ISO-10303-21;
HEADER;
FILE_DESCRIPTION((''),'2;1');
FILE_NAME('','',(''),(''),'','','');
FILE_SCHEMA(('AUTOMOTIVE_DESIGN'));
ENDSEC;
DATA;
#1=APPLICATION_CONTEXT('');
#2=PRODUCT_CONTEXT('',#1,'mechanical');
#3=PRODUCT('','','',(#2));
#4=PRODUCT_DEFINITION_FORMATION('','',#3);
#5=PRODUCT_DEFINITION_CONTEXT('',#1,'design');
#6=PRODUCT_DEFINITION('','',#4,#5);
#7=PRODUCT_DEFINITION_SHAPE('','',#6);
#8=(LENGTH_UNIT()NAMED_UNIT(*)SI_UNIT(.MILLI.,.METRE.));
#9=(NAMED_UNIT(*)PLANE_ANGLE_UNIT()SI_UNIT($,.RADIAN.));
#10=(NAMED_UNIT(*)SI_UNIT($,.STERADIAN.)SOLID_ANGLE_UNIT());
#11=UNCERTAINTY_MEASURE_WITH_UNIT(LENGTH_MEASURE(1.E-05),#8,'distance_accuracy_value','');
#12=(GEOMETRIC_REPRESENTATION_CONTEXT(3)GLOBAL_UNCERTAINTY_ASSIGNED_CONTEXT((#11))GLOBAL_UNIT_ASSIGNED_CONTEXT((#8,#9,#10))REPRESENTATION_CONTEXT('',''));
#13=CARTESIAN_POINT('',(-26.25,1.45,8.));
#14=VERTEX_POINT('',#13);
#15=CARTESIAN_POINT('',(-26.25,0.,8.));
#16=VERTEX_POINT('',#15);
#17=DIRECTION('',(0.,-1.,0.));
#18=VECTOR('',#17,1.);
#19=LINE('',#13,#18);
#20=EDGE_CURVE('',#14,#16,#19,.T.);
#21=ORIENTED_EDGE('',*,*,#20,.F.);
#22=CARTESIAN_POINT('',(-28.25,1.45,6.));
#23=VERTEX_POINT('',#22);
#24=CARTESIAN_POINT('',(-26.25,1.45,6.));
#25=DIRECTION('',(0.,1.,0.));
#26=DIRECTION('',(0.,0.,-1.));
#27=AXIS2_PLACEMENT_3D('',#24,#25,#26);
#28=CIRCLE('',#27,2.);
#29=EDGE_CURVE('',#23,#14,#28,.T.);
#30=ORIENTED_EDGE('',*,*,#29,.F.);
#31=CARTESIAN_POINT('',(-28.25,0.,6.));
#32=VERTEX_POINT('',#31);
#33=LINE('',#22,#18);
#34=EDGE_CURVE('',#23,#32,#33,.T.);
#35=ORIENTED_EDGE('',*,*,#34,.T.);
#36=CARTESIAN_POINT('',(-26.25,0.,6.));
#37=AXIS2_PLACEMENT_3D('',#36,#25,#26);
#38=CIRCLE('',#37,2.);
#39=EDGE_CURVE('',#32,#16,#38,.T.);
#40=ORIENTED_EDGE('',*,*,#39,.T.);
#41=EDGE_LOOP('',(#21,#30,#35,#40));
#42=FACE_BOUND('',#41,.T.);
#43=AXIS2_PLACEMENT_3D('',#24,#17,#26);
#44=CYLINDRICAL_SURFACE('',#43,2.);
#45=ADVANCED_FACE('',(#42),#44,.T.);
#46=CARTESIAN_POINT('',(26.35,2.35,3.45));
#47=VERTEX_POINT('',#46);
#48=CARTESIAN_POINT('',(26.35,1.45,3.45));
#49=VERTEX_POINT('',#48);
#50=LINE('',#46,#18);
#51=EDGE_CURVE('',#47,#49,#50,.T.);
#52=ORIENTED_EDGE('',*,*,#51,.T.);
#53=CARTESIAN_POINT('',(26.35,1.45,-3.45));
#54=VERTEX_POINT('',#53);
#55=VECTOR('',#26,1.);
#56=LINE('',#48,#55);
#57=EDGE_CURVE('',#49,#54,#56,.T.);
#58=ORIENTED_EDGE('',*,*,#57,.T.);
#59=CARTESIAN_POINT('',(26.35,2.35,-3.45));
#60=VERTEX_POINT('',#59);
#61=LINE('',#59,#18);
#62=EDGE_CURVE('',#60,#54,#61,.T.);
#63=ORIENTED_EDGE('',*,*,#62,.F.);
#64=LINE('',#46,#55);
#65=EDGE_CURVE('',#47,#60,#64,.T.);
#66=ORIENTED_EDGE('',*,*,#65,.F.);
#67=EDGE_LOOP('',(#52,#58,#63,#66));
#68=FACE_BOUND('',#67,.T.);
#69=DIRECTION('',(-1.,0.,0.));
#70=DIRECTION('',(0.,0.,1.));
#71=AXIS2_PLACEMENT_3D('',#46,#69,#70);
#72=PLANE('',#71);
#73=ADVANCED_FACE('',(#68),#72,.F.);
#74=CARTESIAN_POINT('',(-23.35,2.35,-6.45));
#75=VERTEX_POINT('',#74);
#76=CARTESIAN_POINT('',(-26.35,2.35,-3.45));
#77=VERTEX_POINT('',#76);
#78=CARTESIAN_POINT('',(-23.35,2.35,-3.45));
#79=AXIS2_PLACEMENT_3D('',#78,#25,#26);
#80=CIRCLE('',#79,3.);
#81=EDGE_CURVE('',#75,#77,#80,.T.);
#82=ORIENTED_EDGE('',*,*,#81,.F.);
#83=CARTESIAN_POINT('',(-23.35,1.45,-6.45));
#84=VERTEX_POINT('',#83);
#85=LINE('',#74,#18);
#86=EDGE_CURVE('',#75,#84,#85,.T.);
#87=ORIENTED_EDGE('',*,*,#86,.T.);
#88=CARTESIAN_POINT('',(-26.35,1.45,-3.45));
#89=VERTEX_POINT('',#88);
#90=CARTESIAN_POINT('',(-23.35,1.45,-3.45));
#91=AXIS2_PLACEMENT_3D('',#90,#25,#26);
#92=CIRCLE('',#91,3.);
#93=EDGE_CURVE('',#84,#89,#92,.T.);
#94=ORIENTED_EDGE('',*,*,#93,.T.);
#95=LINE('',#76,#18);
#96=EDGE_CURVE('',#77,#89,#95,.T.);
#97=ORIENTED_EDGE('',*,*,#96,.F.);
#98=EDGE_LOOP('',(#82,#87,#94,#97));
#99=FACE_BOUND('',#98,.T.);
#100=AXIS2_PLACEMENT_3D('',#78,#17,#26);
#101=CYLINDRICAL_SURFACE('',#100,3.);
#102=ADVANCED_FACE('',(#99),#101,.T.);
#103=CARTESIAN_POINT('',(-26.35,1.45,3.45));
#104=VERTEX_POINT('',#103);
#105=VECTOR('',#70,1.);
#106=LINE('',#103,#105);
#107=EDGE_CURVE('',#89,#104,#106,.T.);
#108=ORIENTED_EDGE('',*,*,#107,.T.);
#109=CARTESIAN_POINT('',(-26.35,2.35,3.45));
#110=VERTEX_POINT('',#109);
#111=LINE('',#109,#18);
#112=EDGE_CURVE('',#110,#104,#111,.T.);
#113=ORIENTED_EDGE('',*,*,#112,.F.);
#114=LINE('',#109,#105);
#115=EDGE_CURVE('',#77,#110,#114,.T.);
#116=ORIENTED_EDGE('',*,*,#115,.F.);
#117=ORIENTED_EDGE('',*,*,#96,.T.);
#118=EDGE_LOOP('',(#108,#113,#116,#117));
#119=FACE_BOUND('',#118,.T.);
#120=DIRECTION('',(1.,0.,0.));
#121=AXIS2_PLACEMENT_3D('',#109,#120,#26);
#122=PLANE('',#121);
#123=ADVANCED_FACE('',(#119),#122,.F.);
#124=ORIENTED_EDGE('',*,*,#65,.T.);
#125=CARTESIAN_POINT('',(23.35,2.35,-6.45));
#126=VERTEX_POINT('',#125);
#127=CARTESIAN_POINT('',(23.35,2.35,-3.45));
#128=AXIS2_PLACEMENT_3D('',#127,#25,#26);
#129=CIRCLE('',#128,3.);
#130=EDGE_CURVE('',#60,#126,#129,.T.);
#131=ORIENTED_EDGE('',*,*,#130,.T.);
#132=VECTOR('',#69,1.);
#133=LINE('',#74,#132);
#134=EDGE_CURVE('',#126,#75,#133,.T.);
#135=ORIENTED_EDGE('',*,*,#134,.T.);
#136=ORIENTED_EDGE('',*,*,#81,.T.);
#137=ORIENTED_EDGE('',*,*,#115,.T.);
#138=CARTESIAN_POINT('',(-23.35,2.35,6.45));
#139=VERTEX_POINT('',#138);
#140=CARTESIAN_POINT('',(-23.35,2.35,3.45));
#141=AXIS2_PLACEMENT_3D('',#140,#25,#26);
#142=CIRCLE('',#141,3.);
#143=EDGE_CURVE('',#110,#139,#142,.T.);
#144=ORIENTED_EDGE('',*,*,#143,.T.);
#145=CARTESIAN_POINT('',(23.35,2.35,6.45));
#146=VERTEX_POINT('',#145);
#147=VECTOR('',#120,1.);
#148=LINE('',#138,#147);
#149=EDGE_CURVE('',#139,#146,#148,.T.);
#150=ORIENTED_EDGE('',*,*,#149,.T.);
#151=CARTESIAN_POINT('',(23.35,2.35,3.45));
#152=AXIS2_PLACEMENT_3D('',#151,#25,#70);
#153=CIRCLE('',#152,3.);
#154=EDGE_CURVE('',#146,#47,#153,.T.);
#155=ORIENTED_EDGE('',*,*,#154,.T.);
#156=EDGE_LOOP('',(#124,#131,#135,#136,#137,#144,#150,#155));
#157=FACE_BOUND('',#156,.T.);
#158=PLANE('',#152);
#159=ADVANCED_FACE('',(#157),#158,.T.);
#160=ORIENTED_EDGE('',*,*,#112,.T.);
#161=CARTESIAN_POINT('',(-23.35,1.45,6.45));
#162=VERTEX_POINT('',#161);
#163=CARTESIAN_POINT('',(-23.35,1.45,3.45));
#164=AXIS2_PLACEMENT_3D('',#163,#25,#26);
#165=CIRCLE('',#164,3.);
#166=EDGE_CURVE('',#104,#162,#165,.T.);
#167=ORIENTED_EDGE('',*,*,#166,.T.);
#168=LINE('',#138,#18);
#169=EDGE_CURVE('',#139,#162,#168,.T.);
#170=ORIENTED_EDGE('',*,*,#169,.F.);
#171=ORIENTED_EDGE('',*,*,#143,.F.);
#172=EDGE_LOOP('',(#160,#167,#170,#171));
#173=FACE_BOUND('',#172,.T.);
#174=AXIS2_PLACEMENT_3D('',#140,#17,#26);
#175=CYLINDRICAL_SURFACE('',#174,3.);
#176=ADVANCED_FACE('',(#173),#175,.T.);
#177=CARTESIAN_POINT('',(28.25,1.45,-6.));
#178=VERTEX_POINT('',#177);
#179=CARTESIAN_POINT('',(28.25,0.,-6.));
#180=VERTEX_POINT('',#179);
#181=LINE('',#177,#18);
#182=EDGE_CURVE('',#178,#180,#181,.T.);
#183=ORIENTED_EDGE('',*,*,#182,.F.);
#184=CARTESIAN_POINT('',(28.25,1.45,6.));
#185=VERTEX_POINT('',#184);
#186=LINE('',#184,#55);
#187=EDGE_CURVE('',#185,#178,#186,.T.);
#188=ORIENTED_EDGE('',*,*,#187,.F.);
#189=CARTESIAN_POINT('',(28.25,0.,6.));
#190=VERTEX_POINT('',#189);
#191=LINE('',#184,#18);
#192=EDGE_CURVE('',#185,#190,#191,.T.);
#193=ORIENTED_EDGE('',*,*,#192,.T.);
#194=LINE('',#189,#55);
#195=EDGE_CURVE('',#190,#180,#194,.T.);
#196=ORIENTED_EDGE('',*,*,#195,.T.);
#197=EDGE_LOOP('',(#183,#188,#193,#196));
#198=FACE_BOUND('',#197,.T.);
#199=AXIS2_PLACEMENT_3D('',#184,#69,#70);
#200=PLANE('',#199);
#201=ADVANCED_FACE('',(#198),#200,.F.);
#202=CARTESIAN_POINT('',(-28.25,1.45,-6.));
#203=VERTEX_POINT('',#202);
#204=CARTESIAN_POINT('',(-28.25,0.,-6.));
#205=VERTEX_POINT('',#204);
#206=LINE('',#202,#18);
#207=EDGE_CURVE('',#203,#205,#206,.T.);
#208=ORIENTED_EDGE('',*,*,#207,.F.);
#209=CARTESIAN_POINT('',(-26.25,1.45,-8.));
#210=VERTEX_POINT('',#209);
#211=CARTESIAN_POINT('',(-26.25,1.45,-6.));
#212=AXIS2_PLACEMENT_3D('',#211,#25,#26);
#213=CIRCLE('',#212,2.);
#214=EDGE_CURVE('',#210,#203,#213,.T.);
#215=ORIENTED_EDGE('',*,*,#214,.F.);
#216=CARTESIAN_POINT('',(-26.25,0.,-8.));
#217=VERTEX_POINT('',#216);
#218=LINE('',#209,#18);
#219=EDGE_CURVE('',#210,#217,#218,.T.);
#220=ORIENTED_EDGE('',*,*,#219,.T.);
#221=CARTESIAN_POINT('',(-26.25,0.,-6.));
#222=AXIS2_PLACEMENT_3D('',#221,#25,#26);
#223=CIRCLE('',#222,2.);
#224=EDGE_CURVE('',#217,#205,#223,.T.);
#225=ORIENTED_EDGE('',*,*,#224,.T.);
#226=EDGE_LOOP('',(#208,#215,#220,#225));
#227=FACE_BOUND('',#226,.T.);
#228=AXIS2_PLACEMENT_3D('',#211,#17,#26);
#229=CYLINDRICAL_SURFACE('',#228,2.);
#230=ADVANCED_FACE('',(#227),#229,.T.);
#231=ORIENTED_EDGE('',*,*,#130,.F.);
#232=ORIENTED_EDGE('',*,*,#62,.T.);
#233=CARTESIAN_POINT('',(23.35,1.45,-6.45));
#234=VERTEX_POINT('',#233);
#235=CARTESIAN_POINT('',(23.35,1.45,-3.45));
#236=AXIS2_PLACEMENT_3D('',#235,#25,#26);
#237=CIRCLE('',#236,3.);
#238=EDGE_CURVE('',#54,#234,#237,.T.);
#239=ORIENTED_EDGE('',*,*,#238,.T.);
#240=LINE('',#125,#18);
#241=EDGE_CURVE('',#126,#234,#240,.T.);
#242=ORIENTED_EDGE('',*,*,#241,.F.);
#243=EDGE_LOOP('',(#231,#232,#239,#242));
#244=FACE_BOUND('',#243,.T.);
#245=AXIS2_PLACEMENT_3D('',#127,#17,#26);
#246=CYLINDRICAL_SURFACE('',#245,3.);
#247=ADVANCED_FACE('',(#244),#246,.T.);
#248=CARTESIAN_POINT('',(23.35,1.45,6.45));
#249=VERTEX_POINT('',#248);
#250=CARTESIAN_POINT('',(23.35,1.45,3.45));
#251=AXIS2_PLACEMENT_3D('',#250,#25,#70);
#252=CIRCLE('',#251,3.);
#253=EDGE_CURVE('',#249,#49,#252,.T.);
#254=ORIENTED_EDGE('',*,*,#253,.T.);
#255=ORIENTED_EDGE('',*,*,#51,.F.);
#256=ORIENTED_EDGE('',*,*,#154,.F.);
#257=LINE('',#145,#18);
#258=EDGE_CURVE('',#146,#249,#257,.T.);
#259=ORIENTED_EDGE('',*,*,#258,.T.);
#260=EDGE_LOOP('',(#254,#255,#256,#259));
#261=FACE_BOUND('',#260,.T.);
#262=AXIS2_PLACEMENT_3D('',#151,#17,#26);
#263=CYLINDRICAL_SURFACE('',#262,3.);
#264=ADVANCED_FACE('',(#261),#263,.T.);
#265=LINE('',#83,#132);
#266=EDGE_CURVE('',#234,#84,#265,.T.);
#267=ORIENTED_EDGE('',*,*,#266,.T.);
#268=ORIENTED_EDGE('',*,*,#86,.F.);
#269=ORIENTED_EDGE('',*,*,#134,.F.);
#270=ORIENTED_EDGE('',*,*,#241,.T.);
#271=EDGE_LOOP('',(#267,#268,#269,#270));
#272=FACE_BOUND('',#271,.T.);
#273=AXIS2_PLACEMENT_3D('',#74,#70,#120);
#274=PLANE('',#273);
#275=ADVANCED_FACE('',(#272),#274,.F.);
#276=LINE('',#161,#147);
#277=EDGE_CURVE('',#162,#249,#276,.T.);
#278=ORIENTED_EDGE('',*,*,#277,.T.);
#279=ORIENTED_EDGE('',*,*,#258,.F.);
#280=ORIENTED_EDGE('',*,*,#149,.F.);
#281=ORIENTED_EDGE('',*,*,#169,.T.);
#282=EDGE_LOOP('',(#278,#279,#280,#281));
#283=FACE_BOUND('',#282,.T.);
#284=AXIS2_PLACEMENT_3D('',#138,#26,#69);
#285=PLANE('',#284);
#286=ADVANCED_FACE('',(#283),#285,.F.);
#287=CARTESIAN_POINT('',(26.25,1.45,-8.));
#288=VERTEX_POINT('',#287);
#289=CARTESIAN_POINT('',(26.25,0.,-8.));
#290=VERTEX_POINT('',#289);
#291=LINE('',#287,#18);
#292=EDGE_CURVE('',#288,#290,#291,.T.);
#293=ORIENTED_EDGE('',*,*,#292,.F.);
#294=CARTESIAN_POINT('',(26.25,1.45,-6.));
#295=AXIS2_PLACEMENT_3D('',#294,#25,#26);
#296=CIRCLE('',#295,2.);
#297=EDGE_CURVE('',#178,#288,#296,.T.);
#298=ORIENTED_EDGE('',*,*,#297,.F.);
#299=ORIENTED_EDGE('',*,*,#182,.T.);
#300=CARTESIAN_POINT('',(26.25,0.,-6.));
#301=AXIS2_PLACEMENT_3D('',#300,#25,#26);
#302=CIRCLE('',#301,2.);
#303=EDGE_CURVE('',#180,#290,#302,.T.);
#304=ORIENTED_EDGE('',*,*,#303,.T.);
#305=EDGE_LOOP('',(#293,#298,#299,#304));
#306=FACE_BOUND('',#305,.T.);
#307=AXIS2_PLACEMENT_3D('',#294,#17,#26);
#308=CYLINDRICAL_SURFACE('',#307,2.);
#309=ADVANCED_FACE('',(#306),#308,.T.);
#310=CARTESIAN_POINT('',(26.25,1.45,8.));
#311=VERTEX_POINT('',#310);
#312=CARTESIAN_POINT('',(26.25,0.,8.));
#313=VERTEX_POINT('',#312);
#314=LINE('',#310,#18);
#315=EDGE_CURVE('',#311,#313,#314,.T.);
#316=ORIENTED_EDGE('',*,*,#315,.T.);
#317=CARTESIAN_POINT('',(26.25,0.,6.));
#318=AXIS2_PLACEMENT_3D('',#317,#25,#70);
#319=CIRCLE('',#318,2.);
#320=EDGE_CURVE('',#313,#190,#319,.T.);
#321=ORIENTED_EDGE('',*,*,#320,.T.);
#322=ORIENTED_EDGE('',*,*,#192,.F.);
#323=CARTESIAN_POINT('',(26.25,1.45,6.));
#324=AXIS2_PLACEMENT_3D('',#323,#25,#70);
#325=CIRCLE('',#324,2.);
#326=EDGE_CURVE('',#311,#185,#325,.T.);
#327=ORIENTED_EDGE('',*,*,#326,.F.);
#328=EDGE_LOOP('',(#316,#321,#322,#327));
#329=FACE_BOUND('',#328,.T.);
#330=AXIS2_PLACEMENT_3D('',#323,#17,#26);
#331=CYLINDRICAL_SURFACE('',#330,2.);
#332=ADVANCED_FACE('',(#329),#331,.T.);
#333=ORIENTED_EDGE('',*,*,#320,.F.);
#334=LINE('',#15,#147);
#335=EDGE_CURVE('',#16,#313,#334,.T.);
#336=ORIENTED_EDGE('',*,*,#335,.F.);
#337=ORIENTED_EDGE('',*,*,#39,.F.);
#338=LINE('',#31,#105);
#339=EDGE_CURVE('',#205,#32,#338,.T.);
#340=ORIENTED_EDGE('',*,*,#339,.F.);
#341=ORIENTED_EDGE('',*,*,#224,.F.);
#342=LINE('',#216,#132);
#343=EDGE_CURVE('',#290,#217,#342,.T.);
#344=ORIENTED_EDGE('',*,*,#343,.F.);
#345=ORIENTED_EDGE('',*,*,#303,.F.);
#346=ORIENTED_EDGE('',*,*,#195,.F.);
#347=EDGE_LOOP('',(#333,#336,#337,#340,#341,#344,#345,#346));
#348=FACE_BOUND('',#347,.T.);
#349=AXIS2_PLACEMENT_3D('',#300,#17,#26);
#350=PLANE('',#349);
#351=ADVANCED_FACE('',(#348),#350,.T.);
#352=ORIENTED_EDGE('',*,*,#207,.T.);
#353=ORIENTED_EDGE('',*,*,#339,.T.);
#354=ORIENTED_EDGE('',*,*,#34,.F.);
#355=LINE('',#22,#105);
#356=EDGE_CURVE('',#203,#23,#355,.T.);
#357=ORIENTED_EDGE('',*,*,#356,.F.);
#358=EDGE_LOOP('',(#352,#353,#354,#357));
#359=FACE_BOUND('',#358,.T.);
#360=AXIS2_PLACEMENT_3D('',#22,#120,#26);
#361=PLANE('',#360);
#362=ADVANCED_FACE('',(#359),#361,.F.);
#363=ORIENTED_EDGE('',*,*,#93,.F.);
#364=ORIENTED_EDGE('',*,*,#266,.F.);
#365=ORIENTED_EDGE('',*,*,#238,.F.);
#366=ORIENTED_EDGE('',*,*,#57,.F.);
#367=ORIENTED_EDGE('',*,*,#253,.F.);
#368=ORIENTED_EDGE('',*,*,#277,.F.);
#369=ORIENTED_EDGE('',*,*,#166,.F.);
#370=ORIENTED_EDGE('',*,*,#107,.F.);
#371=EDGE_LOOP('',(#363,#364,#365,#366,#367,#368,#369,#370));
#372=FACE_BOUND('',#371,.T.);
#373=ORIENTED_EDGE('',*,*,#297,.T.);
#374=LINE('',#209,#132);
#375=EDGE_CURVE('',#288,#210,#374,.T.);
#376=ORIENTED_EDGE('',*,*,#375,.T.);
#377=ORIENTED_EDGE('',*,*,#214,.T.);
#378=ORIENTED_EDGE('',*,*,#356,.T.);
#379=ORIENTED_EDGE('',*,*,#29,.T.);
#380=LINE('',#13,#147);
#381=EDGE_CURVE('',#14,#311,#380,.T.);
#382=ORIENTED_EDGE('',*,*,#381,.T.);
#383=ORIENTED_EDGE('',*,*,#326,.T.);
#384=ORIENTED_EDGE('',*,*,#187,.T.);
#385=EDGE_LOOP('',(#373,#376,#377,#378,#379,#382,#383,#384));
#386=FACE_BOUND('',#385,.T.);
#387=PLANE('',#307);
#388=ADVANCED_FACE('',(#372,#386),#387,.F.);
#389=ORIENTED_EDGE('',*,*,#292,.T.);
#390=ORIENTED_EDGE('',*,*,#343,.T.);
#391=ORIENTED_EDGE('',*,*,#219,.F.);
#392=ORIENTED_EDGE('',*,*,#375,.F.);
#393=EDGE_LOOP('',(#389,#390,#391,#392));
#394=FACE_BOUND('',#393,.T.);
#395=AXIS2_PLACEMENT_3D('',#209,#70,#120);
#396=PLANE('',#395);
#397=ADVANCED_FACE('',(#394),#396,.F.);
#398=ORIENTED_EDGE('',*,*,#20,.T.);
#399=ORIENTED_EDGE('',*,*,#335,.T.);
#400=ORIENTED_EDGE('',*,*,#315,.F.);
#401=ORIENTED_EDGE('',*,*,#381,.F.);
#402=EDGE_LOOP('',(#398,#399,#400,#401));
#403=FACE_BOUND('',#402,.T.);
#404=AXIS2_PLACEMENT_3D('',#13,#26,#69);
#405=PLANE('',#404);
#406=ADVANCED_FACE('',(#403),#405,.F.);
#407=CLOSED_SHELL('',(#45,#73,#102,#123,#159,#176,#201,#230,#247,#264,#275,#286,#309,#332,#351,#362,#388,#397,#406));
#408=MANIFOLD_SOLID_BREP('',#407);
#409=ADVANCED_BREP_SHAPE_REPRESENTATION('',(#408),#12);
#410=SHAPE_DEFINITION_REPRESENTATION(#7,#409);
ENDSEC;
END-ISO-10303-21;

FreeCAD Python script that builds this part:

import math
import FreeCAD as App
import Part
import Sketcher
Q = App.Units.Quantity

doc = App.newDocument("Part")
params = doc.addObject("Spreadsheet::Sheet", "Params")
for row, (alias, value) in enumerate([
    ("sketch1_radius", "2 mm"),
    ("sketch1_height", "12 mm"),
    ("sketch1_width", "52.5 mm"),
    ("pad1_length", "1.45 mm"),
    ("sketch2_radius", "3 mm"),
    ("sketch2_width", "46.7 mm"),
    ("sketch2_height", "6.9 mm"),
    ("pad2_length", "0.9 mm"),
], start=1):
    params.set(f"A{row}", alias)
    params.set(f"B{row}", "=" + value)
    params.setAlias(f"B{row}", alias)

body = doc.addObject("PartDesign::Body", "Body")

sketch1 = doc.addObject("Sketcher::SketchObject", "Sketch")
body.addObject(sketch1)
sketch1.AttachmentSupport = (doc.XZ_Plane, [""])
sketch1.MapMode = "FlatFace"
sketch1.addGeometry([
    Part.LineSegment(App.Vector(-26.25, 8, 0), App.Vector(26.25, 8, 0)),
    Part.ArcOfCircle(Part.Circle(App.Vector(26.25, 6, 0), App.Vector(0, 0, 1), 2), math.radians(0), math.radians(90)),
    Part.LineSegment(App.Vector(28.25, 6, 0), App.Vector(28.25, -6, 0)),
    Part.ArcOfCircle(Part.Circle(App.Vector(26.25, -6, 0), App.Vector(0, 0, 1), 2), math.radians(-90), math.radians(0)),
    Part.LineSegment(App.Vector(26.25, -8, 0), App.Vector(-26.25, -8, 0)),
    Part.ArcOfCircle(Part.Circle(App.Vector(-26.25, -6, 0), App.Vector(0, 0, 1), 2), math.radians(-180), math.radians(-90)),
    Part.LineSegment(App.Vector(-28.25, -6, 0), App.Vector(-28.25, 6, 0)),
    Part.ArcOfCircle(Part.Circle(App.Vector(-26.25, 6, 0), App.Vector(0, 0, 1), 2), math.radians(90), math.radians(180)),
], False)
sketch1.addConstraint([
    Sketcher.Constraint("Tangent", 0, 2, 1, 2),
    Sketcher.Constraint("Tangent", 1, 1, 2, 1),
    Sketcher.Constraint("Tangent", 2, 2, 3, 2),
    Sketcher.Constraint("Tangent", 3, 1, 4, 1),
    Sketcher.Constraint("Tangent", 4, 2, 5, 2),
    Sketcher.Constraint("Tangent", 5, 1, 6, 1),
    Sketcher.Constraint("Tangent", 6, 2, 7, 2),
    Sketcher.Constraint("Tangent", 7, 1, 0, 1),
    Sketcher.Constraint("Horizontal", 0),
    Sketcher.Constraint("Vertical", 2),
    Sketcher.Constraint("Horizontal", 4),
    Sketcher.Constraint("Vertical", 6),
    Sketcher.Constraint("Equal", 1, 3),
    Sketcher.Constraint("Equal", 3, 5),
    Sketcher.Constraint("Equal", 5, 7),
    Sketcher.Constraint("Symmetric", 1, 3, 5, 3, -1, 1),
    Sketcher.Constraint("Radius", 1, Q("2 mm")),
    Sketcher.Constraint("DistanceY", 2, 2, 2, 1, Q("12 mm")),
    Sketcher.Constraint("DistanceX", 0, 1, 0, 2, Q("52.5 mm")),
])
sketch1.setExpression("Constraints[16]", "Params.sketch1_radius")
sketch1.setExpression("Constraints[17]", "Params.sketch1_height")
sketch1.setExpression("Constraints[18]", "Params.sketch1_width")
pad1 = doc.addObject("PartDesign::Pad", "Pad")
body.addObject(pad1)
pad1.Profile = sketch1
pad1.setExpression("Length", "Params.pad1_length")
pad1.Reversed = True

sketch2 = doc.addObject("Sketcher::SketchObject", "Sketch001")
body.addObject(sketch2)
sketch2.AttachmentSupport = (doc.XZ_Plane, [""])
sketch2.MapMode = "FlatFace"
sketch2.AttachmentOffset = App.Placement(App.Vector(0, 0, -1.45), App.Rotation())
sketch2.addGeometry([
    Part.LineSegment(App.Vector(-23.35, 6.45, 0), App.Vector(23.35, 6.45, 0)),
    Part.ArcOfCircle(Part.Circle(App.Vector(23.35, 3.45, 0), App.Vector(0, 0, 1), 3), math.radians(0), math.radians(90)),
    Part.LineSegment(App.Vector(26.35, 3.45, 0), App.Vector(26.35, -3.45, 0)),
    Part.ArcOfCircle(Part.Circle(App.Vector(23.35, -3.45, 0), App.Vector(0, 0, 1), 3), math.radians(-90), math.radians(0)),
    Part.LineSegment(App.Vector(23.35, -6.45, 0), App.Vector(-23.35, -6.45, 0)),
    Part.ArcOfCircle(Part.Circle(App.Vector(-23.35, -3.45, 0), App.Vector(0, 0, 1), 3), math.radians(180), math.radians(270)),
    Part.LineSegment(App.Vector(-26.35, -3.45, 0), App.Vector(-26.35, 3.45, 0)),
    Part.ArcOfCircle(Part.Circle(App.Vector(-23.35, 3.45, 0), App.Vector(0, 0, 1), 3), math.radians(90), math.radians(180)),
], False)
sketch2.addConstraint([
    Sketcher.Constraint("Tangent", 0, 2, 1, 2),
    Sketcher.Constraint("Tangent", 1, 1, 2, 1),
    Sketcher.Constraint("Tangent", 2, 2, 3, 2),
    Sketcher.Constraint("Tangent", 3, 1, 4, 1),
    Sketcher.Constraint("Tangent", 4, 2, 5, 2),
    Sketcher.Constraint("Tangent", 5, 1, 6, 1),
    Sketcher.Constraint("Tangent", 6, 2, 7, 2),
    Sketcher.Constraint("Tangent", 7, 1, 0, 1),
    Sketcher.Constraint("Horizontal", 0),
    Sketcher.Constraint("Vertical", 2),
    Sketcher.Constraint("Horizontal", 4),
    Sketcher.Constraint("Vertical", 6),
    Sketcher.Constraint("Equal", 1, 3),
    Sketcher.Constraint("Equal", 3, 5),
    Sketcher.Constraint("Equal", 5, 7),
    Sketcher.Constraint("Symmetric", 1, 3, 5, 3, -1, 1),
    Sketcher.Constraint("Radius", 1, Q("3 mm")),
    Sketcher.Constraint("DistanceX", 0, 1, 0, 2, Q("46.7 mm")),
    Sketcher.Constraint("DistanceY", 2, 2, 2, 1, Q("6.9 mm")),
])
sketch2.setExpression("Constraints[16]", "Params.sketch2_radius")
sketch2.setExpression("Constraints[17]", "Params.sketch2_width")
sketch2.setExpression("Constraints[18]", "Params.sketch2_height")
pad2 = doc.addObject("PartDesign::Pad", "Pad001")
body.addObject(pad2)
pad2.Profile = sketch2
pad2.setExpression("Length", "Params.pad2_length")
pad2.Reversed = True

doc.recompute()
